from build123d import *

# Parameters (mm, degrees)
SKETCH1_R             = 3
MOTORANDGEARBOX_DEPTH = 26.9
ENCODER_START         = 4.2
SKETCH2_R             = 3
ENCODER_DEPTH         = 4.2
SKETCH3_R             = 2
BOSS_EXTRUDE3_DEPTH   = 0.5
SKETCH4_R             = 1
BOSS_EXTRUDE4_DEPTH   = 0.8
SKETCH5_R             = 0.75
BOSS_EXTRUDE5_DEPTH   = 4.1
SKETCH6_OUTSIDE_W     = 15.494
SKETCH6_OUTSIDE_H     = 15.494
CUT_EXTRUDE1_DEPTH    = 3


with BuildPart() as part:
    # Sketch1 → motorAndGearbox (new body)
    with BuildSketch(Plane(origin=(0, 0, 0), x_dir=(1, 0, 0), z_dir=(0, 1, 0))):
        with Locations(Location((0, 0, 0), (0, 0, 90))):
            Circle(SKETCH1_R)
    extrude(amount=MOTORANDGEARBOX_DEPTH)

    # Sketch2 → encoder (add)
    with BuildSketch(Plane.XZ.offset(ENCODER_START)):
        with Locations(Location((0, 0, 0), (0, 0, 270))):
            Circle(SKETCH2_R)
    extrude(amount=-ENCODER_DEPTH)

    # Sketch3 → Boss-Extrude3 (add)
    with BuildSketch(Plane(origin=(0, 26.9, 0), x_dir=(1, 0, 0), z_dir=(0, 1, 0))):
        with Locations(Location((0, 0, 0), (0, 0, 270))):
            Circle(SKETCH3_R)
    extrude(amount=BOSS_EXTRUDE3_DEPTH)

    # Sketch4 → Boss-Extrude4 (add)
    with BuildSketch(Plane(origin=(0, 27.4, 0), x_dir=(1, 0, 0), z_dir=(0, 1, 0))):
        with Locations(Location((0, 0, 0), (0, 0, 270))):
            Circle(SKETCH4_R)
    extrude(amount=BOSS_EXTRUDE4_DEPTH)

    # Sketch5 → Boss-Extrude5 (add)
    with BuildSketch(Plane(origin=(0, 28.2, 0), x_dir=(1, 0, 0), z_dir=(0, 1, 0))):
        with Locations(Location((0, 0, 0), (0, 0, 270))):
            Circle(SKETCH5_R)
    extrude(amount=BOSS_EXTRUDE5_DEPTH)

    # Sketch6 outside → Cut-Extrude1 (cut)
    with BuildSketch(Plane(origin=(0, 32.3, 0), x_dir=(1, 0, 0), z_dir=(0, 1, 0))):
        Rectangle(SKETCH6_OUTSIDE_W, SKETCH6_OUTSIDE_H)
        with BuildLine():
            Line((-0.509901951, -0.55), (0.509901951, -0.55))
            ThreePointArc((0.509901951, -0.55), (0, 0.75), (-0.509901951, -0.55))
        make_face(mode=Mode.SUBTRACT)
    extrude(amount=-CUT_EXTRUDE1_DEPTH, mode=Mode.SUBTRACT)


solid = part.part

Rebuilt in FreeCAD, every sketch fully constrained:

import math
import FreeCAD as App
import Part
import Sketcher
Q = App.Units.Quantity

doc = App.newDocument("Part")
body = doc.addObject("PartDesign::Body", "Body")

sketch1 = doc.addObject("Sketcher::SketchObject", "Sketch")
body.addObject(sketch1)
sketch1.AttachmentSupport = (doc.XZ_Plane, [""])
sketch1.MapMode = "FlatFace"
sketch1.addGeometry(Part.Circle(App.Vector(0, 0, 0), App.Vector(0, 0, 1), 3), False)
sketch1.addConstraint(Sketcher.Constraint("Coincident", 0, 3, -1, 1))
sketch1.addConstraint(Sketcher.Constraint("Diameter", 0, Q("6 mm")))
pad1 = doc.addObject("PartDesign::Pad", "Pad")
body.addObject(pad1)
pad1.Profile = sketch1
pad1.Length = 26.9
pad1.Reversed = True

sketch2 = doc.addObject("Sketcher::SketchObject", "Sketch001")
body.addObject(sketch2)
sketch2.AttachmentSupport = (doc.XZ_Plane, [""])
sketch2.MapMode = "FlatFace"
sketch2.AttachmentOffset = App.Placement(App.Vector(0, 0, 4.2), App.Rotation())
sketch2.addGeometry(Part.Circle(App.Vector(0, 0, 0), App.Vector(0, 0, 1), 3), False)
sketch2.addConstraint(Sketcher.Constraint("Coincident", 0, 3, -1, 1))
sketch2.addConstraint(Sketcher.Constraint("Diameter", 0, Q("6 mm")))
pad2 = doc.addObject("PartDesign::Pad", "Pad001")
body.addObject(pad2)
pad2.Profile = sketch2
pad2.Length = 4.2
pad2.Reversed = True

sketch3 = doc.addObject("Sketcher::SketchObject", "Sketch002")
body.addObject(sketch3)
sketch3.AttachmentSupport = (doc.XZ_Plane, [""])
sketch3.MapMode = "FlatFace"
sketch3.AttachmentOffset = App.Placement(App.Vector(0, 0, -26.9), App.Rotation())
sketch3.addGeometry(Part.Circle(App.Vector(0, 0, 0), App.Vector(0, 0, 1), 2), False)
sketch3.addConstraint(Sketcher.Constraint("Coincident", 0, 3, -1, 1))
sketch3.addConstraint(Sketcher.Constraint("Diameter", 0, Q("4 mm")))
pad3 = doc.addObject("PartDesign::Pad", "Pad002")
body.addObject(pad3)
pad3.Profile = sketch3
pad3.Length = 0.5
pad3.Reversed = True

sketch4 = doc.addObject("Sketcher::SketchObject", "Sketch003")
body.addObject(sketch4)
sketch4.AttachmentSupport = (doc.XZ_Plane, [""])
sketch4.MapMode = "FlatFace"
sketch4.AttachmentOffset = App.Placement(App.Vector(0, 0, -27.4), App.Rotation())
sketch4.addGeometry(Part.Circle(App.Vector(0, 0, 0), App.Vector(0, 0, 1), 1), False)
sketch4.addConstraint(Sketcher.Constraint("Coincident", 0, 3, -1, 1))
sketch4.addConstraint(Sketcher.Constraint("Diameter", 0, Q("2 mm")))
pad4 = doc.addObject("PartDesign::Pad", "Pad003")
body.addObject(pad4)
pad4.Profile = sketch4
pad4.Length = 0.8
pad4.Reversed = True

sketch5 = doc.addObject("Sketcher::SketchObject", "Sketch004")
body.addObject(sketch5)
sketch5.AttachmentSupport = (doc.XZ_Plane, [""])
sketch5.MapMode = "FlatFace"
sketch5.AttachmentOffset = App.Placement(App.Vector(0, 0, -28.2), App.Rotation())
sketch5.addGeometry(Part.Circle(App.Vector(0, 0, 0), App.Vector(0, 0, 1), 0.75), False)
sketch5.addConstraint(Sketcher.Constraint("Coincident", 0, 3, -1, 1))
sketch5.addConstraint(Sketcher.Constraint("Diameter", 0, Q("1.5 mm")))
pad5 = doc.addObject("PartDesign::Pad", "Pad004")
body.addObject(pad5)
pad5.Profile = sketch5
pad5.Length = 4.1
pad5.Reversed = True

sketch6 = doc.addObject("Sketcher::SketchObject", "Sketch005")
body.addObject(sketch6)
sketch6.AttachmentSupport = (doc.XZ_Plane, [""])
sketch6.MapMode = "FlatFace"
sketch6.AttachmentOffset = App.Placement(App.Vector(0, 0, -32.3), App.Rotation())
sketch6.addGeometry(Part.LineSegment(App.Vector(-7.747, -7.747, 0), App.Vector(-7.747, 7.747, 0)), False)
sketch6.addGeometry(Part.LineSegment(App.Vector(-7.747, 7.747, 0), App.Vector(7.747, 7.747, 0)), False)
sketch6.addGeometry(Part.LineSegment(App.Vector(7.747, 7.747, 0), App.Vector(7.747, -7.747, 0)), False)
sketch6.addGeometry(Part.LineSegment(App.Vector(7.747, -7.747, 0), App.Vector(-7.747, -7.747, 0)), False)
sketch6.addGeometry(Part.LineSegment(App.Vector(0.509902, 0.55, 0), App.Vector(-0.509902, 0.55, 0)), False)
sketch6.addGeometry(Part.ArcOfCircle(Part.Circle(App.Vector(0, 0, 0), App.Vector(0, 0, 1), 0.75), math.radians(132.833428), math.radians(407.166572)), False)
sketch6.addConstraint(Sketcher.Constraint("Coincident", 0, 2, 1, 1))
sketch6.addConstraint(Sketcher.Constraint("Coincident", 1, 2, 2, 1))
sketch6.addConstraint(Sketcher.Constraint("Coincident", 2, 2, 3, 1))
sketch6.addConstraint(Sketcher.Constraint("Coincident", 3, 2, 0, 1))
sketch6.addConstraint(Sketcher.Constraint("Coincident", 4, 1, 5, 2))
sketch6.addConstraint(Sketcher.Constraint("Coincident", 5, 1, 4, 2))
sketch6.addConstraint(Sketcher.Constraint("Vertical", 0))
sketch6.addConstraint(Sketcher.Constraint("Horizontal", 1))
sketch6.addConstraint(Sketcher.Constraint("Vertical", 2))
sketch6.addConstraint(Sketcher.Constraint("Horizontal", 3))
sketch6.addConstraint(Sketcher.Constraint("Horizontal", 4))
sketch6.addConstraint(Sketcher.Constraint("Coincident", 5, 3, -1, 1))
sketch6.addConstraint(Sketcher.Constraint("Symmetric", 0, 2, 2, 2, -1, 1))
sketch6.addConstraint(Sketcher.Constraint("Equal", 3, 0))
sketch6.addConstraint(Sketcher.Constraint("Radius", 5, Q("0.75 mm")))
sketch6.addConstraint(Sketcher.Constraint("DistanceX", 1, 1, 1, 2, Q("15.494 mm")))
sketch6.addConstraint(Sketcher.Constraint("DistanceY", -1, 1, 4, 1, Q("0.55 mm")))
pocket1 = doc.addObject("PartDesign::Pocket", "Pocket")
body.addObject(pocket1)
pocket1.Profile = sketch6
pocket1.Length = 3
pocket1.Reversed = True

doc.recompute()
